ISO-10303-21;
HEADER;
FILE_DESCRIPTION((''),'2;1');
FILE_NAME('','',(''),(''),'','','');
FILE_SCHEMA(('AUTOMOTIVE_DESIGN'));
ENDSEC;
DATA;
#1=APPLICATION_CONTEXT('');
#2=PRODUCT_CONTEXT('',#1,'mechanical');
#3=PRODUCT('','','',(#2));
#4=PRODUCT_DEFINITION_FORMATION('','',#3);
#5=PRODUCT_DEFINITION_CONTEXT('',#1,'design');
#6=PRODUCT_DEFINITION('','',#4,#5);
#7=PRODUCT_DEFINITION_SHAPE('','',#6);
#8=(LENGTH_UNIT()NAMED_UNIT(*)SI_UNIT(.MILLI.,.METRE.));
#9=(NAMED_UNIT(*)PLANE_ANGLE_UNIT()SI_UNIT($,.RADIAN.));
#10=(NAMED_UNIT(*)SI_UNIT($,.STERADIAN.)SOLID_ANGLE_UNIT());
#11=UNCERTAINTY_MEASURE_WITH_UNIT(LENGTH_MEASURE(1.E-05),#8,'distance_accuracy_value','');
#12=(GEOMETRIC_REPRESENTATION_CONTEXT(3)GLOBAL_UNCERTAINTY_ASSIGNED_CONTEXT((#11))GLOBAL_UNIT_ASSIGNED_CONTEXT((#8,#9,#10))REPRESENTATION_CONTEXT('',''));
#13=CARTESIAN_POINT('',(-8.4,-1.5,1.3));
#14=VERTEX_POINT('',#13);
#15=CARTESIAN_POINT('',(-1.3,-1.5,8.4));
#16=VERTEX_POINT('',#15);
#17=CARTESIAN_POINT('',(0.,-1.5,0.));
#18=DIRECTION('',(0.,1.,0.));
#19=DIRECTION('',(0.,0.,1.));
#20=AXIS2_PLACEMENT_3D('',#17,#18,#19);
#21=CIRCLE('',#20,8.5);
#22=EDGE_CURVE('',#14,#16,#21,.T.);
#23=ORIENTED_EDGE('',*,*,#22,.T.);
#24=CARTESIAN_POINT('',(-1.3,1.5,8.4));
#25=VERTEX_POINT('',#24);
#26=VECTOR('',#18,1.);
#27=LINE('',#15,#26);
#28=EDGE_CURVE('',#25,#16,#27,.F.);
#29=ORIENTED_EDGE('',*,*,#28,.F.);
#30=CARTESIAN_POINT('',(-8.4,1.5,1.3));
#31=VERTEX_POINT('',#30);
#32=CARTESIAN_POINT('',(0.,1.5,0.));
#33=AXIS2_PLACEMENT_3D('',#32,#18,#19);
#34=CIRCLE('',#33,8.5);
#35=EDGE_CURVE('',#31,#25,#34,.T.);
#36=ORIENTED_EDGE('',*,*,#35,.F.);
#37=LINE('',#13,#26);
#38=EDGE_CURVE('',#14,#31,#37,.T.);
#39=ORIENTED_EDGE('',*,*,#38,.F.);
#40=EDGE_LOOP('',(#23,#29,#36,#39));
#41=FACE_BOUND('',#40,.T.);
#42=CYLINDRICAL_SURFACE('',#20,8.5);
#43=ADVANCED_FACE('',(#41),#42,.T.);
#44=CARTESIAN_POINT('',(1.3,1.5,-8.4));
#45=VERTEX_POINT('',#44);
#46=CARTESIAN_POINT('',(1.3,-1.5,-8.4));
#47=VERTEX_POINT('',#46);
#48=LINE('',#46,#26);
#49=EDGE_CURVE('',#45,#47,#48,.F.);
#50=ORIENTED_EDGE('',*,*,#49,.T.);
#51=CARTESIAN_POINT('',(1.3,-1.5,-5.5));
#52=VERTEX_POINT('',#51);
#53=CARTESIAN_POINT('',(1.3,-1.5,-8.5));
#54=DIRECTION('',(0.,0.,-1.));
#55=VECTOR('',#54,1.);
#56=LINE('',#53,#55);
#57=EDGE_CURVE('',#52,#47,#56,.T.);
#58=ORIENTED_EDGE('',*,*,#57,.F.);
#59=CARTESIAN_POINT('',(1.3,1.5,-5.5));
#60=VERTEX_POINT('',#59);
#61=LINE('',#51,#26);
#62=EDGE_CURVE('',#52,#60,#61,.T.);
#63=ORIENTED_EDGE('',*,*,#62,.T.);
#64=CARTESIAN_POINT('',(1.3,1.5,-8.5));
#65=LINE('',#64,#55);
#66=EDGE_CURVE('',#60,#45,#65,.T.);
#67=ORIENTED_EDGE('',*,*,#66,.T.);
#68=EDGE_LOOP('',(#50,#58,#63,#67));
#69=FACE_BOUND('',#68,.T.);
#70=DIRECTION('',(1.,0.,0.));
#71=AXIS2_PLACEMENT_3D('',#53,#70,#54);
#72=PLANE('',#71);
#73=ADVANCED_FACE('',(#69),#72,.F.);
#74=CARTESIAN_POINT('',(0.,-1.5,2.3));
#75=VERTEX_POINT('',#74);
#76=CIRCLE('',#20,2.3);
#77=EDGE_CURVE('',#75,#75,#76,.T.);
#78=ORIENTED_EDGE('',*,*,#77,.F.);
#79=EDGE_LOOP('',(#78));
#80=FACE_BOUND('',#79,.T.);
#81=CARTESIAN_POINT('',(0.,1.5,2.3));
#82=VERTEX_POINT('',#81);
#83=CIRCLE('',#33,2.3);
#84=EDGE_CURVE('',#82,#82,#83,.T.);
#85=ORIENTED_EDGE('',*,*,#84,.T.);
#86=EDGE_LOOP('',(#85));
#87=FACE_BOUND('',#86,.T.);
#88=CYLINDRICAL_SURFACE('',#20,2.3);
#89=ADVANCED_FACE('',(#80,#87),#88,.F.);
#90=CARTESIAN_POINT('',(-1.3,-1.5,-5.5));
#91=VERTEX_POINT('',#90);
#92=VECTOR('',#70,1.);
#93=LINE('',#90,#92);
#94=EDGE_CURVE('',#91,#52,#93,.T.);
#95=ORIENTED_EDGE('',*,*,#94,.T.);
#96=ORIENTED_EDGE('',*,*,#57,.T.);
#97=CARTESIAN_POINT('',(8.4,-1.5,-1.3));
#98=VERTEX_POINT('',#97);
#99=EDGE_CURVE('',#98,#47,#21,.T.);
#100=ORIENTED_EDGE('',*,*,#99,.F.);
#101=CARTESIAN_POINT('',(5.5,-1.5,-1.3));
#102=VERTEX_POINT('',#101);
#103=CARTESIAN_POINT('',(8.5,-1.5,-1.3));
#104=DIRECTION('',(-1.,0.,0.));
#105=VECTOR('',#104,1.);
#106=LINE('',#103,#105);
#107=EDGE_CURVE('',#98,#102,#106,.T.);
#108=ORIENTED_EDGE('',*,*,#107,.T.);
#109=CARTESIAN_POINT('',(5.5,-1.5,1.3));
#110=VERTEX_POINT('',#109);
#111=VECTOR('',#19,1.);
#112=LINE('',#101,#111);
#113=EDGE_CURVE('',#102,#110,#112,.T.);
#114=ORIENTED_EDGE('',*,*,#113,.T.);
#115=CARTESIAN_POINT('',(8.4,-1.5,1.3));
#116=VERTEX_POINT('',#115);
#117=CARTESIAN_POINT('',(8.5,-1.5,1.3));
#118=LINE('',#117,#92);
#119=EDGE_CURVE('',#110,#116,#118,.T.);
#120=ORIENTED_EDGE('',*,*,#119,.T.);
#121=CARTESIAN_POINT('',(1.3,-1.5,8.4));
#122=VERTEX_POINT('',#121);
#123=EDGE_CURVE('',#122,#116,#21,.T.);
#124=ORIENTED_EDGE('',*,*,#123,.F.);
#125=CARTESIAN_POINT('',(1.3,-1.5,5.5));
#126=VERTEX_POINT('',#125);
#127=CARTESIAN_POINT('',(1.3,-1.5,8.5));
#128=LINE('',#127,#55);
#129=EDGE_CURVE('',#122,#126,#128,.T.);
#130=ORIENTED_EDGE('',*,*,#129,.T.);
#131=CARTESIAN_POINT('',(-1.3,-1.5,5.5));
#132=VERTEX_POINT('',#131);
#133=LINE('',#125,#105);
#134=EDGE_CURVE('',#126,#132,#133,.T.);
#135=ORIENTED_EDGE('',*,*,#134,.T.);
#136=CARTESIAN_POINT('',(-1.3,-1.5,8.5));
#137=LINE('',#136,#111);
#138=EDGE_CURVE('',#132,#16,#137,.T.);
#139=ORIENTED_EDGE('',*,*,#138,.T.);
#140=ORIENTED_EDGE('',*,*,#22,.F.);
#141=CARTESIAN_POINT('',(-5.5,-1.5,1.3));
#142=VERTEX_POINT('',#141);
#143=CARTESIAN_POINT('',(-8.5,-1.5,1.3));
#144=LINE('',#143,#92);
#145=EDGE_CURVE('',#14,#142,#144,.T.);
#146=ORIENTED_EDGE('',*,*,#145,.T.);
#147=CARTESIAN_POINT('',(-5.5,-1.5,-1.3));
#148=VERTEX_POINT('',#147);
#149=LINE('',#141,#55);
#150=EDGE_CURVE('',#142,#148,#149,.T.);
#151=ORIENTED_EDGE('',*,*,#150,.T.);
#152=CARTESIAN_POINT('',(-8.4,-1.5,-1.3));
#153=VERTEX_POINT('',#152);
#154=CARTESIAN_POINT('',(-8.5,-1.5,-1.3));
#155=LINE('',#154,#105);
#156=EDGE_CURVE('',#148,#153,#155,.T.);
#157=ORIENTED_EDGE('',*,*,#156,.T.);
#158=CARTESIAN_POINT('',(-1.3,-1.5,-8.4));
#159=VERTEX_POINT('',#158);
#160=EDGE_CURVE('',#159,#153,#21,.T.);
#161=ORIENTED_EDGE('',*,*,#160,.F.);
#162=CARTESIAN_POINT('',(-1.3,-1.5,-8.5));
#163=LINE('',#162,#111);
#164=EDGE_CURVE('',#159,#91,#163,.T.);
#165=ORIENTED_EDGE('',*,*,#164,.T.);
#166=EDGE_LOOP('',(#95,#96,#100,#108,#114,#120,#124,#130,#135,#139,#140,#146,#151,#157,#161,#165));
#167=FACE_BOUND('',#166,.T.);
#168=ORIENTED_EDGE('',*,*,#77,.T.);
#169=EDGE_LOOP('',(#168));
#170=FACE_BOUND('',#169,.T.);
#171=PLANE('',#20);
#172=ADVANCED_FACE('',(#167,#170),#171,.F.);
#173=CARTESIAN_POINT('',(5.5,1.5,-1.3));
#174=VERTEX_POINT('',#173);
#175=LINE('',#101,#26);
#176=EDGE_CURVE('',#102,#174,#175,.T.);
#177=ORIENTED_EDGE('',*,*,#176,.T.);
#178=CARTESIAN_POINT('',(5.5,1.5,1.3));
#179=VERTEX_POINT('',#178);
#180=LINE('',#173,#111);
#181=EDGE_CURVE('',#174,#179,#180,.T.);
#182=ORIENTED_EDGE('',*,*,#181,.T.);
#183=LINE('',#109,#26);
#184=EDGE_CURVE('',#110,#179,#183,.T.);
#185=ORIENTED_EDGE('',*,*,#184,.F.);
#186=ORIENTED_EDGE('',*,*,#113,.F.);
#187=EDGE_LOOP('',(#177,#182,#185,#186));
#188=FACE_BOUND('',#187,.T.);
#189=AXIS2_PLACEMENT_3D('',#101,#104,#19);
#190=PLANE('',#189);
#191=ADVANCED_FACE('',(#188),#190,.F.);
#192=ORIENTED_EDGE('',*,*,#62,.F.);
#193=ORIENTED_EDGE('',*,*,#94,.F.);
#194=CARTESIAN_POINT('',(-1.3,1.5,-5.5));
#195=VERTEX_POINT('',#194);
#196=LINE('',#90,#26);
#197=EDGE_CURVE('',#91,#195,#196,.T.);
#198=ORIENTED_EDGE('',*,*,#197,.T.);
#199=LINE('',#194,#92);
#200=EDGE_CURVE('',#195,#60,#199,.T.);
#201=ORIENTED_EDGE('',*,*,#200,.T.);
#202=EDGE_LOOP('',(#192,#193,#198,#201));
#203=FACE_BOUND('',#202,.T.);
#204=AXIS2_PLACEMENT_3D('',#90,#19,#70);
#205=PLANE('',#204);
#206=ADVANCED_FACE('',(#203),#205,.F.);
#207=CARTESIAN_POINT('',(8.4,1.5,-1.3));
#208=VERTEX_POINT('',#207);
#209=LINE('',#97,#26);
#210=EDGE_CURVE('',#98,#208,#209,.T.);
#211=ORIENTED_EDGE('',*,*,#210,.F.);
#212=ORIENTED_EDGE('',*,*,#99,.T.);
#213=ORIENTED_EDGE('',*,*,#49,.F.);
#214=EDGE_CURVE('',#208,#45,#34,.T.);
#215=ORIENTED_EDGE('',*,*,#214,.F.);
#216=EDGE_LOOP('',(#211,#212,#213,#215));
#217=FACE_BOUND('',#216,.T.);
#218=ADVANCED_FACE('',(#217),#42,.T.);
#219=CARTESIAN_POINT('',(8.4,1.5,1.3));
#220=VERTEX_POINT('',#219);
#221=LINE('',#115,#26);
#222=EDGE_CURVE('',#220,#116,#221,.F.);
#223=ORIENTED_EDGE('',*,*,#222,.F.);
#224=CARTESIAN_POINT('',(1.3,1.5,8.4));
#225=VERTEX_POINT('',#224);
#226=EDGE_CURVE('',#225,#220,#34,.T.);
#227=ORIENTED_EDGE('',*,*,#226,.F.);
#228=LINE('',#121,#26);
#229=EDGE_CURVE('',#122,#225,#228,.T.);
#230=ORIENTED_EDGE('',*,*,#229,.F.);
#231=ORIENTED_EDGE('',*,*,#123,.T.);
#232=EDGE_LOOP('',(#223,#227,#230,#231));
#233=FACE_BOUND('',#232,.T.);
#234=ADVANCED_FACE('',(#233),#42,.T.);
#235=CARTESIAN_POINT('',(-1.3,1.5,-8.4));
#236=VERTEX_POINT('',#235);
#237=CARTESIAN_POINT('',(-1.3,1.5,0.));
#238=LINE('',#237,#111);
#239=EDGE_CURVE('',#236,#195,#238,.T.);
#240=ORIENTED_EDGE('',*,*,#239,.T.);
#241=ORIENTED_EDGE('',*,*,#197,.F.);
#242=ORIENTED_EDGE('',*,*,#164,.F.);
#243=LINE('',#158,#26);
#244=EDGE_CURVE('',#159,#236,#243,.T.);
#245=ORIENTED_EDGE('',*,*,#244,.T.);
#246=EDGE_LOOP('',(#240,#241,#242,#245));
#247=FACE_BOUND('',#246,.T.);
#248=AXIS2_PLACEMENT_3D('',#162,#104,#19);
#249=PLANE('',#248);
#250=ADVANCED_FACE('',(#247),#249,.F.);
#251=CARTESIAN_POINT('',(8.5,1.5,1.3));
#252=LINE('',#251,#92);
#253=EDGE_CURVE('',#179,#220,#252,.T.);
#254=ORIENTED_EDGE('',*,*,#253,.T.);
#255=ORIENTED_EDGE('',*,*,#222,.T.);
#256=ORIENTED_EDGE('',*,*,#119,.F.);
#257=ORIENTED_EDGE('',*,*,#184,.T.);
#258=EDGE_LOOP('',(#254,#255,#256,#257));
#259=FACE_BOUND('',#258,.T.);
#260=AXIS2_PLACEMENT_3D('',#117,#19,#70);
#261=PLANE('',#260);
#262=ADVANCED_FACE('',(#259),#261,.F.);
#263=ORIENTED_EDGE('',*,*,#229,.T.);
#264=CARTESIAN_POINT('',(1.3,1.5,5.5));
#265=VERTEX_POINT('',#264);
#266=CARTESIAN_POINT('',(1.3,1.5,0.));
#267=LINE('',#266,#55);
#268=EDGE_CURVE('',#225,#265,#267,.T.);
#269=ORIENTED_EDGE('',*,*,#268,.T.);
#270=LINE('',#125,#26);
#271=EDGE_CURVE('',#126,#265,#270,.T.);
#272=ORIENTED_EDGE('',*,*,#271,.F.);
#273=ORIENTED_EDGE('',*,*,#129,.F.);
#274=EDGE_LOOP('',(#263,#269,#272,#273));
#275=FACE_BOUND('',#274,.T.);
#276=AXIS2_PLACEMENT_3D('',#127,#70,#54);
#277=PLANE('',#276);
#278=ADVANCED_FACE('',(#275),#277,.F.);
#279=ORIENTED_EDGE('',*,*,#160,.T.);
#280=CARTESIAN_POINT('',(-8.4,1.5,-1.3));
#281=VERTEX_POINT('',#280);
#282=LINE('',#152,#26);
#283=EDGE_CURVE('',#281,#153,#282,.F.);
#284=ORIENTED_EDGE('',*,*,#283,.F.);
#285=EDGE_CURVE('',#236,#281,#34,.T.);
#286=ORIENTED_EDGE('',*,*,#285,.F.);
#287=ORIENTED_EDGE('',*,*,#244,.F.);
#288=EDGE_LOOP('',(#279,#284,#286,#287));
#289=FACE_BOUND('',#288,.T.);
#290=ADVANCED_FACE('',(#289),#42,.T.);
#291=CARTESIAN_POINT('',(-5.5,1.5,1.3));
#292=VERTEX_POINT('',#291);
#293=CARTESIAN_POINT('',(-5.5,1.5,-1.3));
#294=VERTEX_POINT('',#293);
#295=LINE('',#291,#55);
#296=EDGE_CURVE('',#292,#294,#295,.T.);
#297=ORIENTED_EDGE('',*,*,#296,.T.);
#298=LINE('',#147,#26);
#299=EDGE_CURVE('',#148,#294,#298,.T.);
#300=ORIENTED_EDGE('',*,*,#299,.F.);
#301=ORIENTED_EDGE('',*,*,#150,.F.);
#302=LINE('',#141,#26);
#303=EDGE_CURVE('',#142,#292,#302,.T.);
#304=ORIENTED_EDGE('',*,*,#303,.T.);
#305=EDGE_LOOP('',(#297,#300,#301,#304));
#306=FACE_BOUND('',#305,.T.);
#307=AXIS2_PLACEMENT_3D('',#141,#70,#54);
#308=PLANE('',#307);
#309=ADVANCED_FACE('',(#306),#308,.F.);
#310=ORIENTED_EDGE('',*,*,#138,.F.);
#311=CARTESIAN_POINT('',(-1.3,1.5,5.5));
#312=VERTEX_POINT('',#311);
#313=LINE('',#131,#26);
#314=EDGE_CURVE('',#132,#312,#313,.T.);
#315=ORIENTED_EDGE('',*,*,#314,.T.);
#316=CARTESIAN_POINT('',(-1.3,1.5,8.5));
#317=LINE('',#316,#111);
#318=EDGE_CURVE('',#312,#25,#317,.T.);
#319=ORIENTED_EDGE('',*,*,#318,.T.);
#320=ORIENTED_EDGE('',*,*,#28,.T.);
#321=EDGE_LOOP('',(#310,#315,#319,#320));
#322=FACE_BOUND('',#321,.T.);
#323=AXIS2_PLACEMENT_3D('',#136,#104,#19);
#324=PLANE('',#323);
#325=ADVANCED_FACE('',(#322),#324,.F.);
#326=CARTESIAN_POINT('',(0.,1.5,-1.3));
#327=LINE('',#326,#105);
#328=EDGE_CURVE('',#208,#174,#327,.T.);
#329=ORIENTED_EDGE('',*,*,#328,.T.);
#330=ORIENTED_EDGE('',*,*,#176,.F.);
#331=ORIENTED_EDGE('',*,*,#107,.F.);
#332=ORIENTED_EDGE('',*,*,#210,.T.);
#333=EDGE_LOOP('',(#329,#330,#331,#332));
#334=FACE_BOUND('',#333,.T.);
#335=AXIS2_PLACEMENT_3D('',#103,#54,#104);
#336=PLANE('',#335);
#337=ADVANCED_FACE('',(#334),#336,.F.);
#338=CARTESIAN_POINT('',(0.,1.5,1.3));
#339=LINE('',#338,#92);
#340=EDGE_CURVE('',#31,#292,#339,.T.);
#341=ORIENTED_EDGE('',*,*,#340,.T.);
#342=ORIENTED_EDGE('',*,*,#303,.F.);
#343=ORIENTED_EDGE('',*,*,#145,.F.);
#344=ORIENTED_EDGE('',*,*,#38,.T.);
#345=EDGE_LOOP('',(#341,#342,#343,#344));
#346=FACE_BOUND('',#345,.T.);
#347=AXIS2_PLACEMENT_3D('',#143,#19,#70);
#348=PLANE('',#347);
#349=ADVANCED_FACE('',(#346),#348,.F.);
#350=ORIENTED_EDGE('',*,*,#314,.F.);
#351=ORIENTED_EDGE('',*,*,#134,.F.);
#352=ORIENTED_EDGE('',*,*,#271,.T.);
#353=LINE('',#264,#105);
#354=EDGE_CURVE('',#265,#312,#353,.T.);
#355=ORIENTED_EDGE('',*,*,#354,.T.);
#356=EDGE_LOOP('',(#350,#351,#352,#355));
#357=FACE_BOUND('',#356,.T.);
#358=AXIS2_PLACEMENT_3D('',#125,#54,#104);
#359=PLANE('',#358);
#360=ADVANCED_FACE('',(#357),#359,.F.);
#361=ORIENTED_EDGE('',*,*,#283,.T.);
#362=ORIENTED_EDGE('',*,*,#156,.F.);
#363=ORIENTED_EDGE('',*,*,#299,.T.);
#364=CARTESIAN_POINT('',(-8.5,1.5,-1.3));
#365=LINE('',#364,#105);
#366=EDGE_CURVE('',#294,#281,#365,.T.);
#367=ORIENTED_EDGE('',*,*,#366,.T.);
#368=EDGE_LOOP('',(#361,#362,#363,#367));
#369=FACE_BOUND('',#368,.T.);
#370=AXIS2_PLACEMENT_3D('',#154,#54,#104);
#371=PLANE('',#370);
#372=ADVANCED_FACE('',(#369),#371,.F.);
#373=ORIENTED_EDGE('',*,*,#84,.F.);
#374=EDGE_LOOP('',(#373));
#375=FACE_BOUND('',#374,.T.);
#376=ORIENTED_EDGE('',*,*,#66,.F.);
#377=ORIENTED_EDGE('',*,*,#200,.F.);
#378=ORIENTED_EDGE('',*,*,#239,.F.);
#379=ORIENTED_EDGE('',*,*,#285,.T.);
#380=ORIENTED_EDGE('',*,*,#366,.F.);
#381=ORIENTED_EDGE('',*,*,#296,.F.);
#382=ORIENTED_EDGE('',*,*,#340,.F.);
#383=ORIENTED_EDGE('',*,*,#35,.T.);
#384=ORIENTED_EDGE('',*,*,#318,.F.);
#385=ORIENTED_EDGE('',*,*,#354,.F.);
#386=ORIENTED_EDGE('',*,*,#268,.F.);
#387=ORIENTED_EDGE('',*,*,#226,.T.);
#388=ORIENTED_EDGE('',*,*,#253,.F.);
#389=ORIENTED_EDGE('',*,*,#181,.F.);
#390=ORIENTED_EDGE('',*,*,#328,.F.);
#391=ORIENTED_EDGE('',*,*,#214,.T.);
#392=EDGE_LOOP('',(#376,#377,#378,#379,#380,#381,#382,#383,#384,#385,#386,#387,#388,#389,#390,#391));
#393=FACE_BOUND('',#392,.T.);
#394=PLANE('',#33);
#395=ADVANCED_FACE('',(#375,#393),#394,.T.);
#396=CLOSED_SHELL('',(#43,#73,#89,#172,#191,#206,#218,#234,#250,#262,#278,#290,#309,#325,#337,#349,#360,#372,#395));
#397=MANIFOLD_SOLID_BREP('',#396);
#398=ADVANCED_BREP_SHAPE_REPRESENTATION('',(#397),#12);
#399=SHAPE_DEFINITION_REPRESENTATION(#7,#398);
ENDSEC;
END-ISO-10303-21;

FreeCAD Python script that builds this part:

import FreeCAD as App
import Part
import Sketcher

V = App.Vector
Q = App.Units.Quantity

doc = App.newDocument("Part")
body = doc.addObject("PartDesign::Body", "Body")

# Sketch on XZ plane
sketch1 = body.newObject("Sketcher::SketchObject", "Sketch")
sketch1.AttachmentSupport = (doc.getObject("XZ_Plane"), [""])
sketch1.MapMode = "FlatFace"
sketch1.addGeometry([
    Part.Circle(V(0, 0, 0), V(0, 0, 1), 8.5),
    Part.Circle(V(0, 0, 0), V(0, 0, 1), 2.3),
], False)
sketch1.addConstraint([
    Sketcher.Constraint("Coincident", 0, 3, -1, 1),
    Sketcher.Constraint("Coincident", 1, 3, -1, 1),
    Sketcher.Constraint("Diameter", 0, Q("17 mm")),
    Sketcher.Constraint("Diameter", 1, Q("4.6 mm")),
])
pad1 = body.newObject("PartDesign::Pad", "Pad")
pad1.Profile = sketch1
pad1.Type = "TwoLengths"
pad1.Length = 1.5
pad1.Length2 = 1.5
pad1.Reversed = True

# Sketch on XZ plane
sketch2 = body.newObject("Sketcher::SketchObject", "Sketch001")
sketch2.AttachmentSupport = (doc.getObject("XZ_Plane"), [""])
sketch2.MapMode = "FlatFace"
sketch2.AttachmentOffset = App.Placement(V(0, 0, -1.5), App.Rotation())
sketch2.addGeometry([
    Part.LineSegment(V(-8.5, -1.3, 0), V(-8.5, 1.3, 0)),  # 0
    Part.LineSegment(V(-8.5, 1.3, 0), V(-5.5, 1.3, 0)),  # 1
    Part.LineSegment(V(-5.5, 1.3, 0), V(-5.5, -1.3, 0)),  # 2
    Part.LineSegment(V(-5.5, -1.3, 0), V(-8.5, -1.3, 0)),  # 3
    Part.LineSegment(V(-1.3, 5.5, 0), V(-1.3, 8.5, 0)),  # 4
    Part.LineSegment(V(-1.3, 8.5, 0), V(1.3, 8.5, 0)),  # 5
    Part.LineSegment(V(1.3, 8.5, 0), V(1.3, 5.5, 0)),  # 6
    Part.LineSegment(V(1.3, 5.5, 0), V(-1.3, 5.5, 0)),  # 7
    Part.LineSegment(V(-1.3, -8.5, 0), V(-1.3, -5.5, 0)),  # 8
    Part.LineSegment(V(-1.3, -5.5, 0), V(1.3, -5.5, 0)),  # 9
    Part.LineSegment(V(1.3, -5.5, 0), V(1.3, -8.5, 0)),  # 10
    Part.LineSegment(V(1.3, -8.5, 0), V(-1.3, -8.5, 0)),  # 11
    Part.LineSegment(V(5.5, -1.3, 0), V(5.5, 1.3, 0)),  # 12
    Part.LineSegment(V(5.5, 1.3, 0), V(8.5, 1.3, 0)),  # 13
    Part.LineSegment(V(8.5, 1.3, 0), V(8.5, -1.3, 0)),  # 14
    Part.LineSegment(V(8.5, -1.3, 0), V(5.5, -1.3, 0)),  # 15
], False)
sketch2.addConstraint([
    Sketcher.Constraint("Coincident", 0, 2, 1, 1),
    Sketcher.Constraint("Coincident", 1, 2, 2, 1),
    Sketcher.Constraint("Coincident", 2, 2, 3, 1),
    Sketcher.Constraint("Coincident", 3, 2, 0, 1),
    Sketcher.Constraint("Coincident", 4, 2, 5, 1),
    Sketcher.Constraint("Coincident", 5, 2, 6, 1),
    Sketcher.Constraint("Coincident", 6, 2, 7, 1),
    Sketcher.Constraint("Coincident", 7, 2, 4, 1),
    Sketcher.Constraint("Coincident", 8, 2, 9, 1),
    Sketcher.Constraint("Coincident", 9, 2, 10, 1),
    Sketcher.Constraint("Coincident", 10, 2, 11, 1),
    Sketcher.Constraint("Coincident", 11, 2, 8, 1),
    Sketcher.Constraint("Coincident", 12, 2, 13, 1),
    Sketcher.Constraint("Coincident", 13, 2, 14, 1),
    Sketcher.Constraint("Coincident", 14, 2, 15, 1),
    Sketcher.Constraint("Coincident", 15, 2, 12, 1),
    Sketcher.Constraint("Vertical", 0),
    Sketcher.Constraint("Horizontal", 1),
    Sketcher.Constraint("Vertical", 2),
    Sketcher.Constraint("Horizontal", 3),
    Sketcher.Constraint("Vertical", 4),
    Sketcher.Constraint("Horizontal", 5),
    Sketcher.Constraint("Vertical", 6),
    Sketcher.Constraint("Horizontal", 7),
    Sketcher.Constraint("Vertical", 8),
    Sketcher.Constraint("Horizontal", 9),
    Sketcher.Constraint("Vertical", 10),
    Sketcher.Constraint("Horizontal", 11),
    Sketcher.Constraint("Vertical", 12),
    Sketcher.Constraint("Horizontal", 13),
    Sketcher.Constraint("Vertical", 14),
    Sketcher.Constraint("Horizontal", 15),
    Sketcher.Constraint("Symmetric", 6, 2, 8, 2, -1, 1),
    Sketcher.Constraint("Symmetric", 4, 2, 10, 2, -1, 1),
    Sketcher.Constraint("Symmetric", 2, 2, 12, 2, -1, 1),
    Sketcher.Constraint("Symmetric", 0, 2, 14, 2, -1, 1),
    Sketcher.Constraint("Horizontal", 1, 2, 12, 2),
    Sketcher.Constraint("Vertical", 7, 2, 8, 2),
    Sketcher.Constraint("Equal", 11, 0),
    Sketcher.Constraint("Equal", 15, 4),
    Sketcher.Constraint("DistanceX", 1, 1, 1, 2, Q("3 mm")),
    Sketcher.Constraint("DistanceX", 5, 1, 5, 2, Q("2.6 mm")),
    Sketcher.Constraint("DistanceY", 8, 2, 7, 2, Q("11 mm")),
    Sketcher.Constraint("DistanceX", 0, 2, -1, 1, Q("8.5 mm")),
])
pocket1 = body.newObject("PartDesign::Pocket", "Pocket")
pocket1.Profile = sketch2
pocket1.Type = "ThroughAll"
pocket1.Reversed = True

doc.recompute()
